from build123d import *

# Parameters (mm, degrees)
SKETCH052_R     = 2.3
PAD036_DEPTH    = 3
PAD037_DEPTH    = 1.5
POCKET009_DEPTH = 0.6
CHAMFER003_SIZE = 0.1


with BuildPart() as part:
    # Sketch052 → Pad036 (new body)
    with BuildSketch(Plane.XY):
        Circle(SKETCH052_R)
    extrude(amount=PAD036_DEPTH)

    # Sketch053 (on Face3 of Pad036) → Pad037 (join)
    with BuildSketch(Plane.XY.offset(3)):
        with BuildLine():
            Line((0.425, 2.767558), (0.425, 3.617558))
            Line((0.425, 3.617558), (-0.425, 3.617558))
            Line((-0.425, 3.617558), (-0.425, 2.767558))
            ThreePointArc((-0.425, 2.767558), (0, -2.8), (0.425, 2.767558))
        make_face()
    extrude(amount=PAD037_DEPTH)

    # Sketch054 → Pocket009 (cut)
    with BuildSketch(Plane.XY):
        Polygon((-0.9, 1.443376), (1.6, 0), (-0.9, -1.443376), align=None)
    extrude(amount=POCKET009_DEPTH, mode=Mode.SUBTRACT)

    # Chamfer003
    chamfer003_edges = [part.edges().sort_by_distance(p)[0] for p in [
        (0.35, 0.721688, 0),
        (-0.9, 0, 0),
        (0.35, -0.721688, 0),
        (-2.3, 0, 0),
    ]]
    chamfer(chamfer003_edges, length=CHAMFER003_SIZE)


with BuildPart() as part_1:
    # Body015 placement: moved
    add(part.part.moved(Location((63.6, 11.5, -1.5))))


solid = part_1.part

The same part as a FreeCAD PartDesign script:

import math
import FreeCAD as App
import Part
import Sketcher

V = App.Vector
Q = App.Units.Quantity


def edges_at(feature, points):
    """Names of the edges that pass closest to the given points."""
    edges = feature.Shape.Edges
    near = lambda p: min(range(len(edges)), key=lambda i: edges[i].distToShape(Part.Vertex(*p))[0])
    return sorted({f"Edge{near(p) + 1}" for p in points})

doc = App.newDocument("Part")
body = doc.addObject("PartDesign::Body", "Body")

# Sketch on XY plane
sketch1 = body.newObject("Sketcher::SketchObject", "Sketch")
sketch1.AttachmentSupport = (doc.getObject("XY_Plane"), [""])
sketch1.MapMode = "FlatFace"
sketch1.addGeometry(Part.Circle(V(0, 0, 0), V(0, 0, 1), 2.3), False)
sketch1.addConstraint(Sketcher.Constraint("Coincident", 0, 3, -1, 1))
sketch1.addConstraint(Sketcher.Constraint("Diameter", 0, 4.6))
pad1 = body.newObject("PartDesign::Pad", "Pad")
pad1.Profile = sketch1
pad1.Length = 3

# Sketch on XY plane
sketch2 = body.newObject("Sketcher::SketchObject", "Sketch001")
sketch2.AttachmentSupport = (doc.getObject("XY_Plane"), [""])
sketch2.MapMode = "FlatFace"
sketch2.AttachmentOffset = App.Placement(V(0, 0, 3), App.Rotation())
sketch2.addGeometry(Part.LineSegment(V(0.425, 2.767558, 0), V(0.425, 3.617558, 0)), False)
sketch2.addGeometry(Part.LineSegment(V(0.425, 3.617558, 0), V(-0.425, 3.617558, 0)), False)
sketch2.addGeometry(Part.LineSegment(V(-0.425, 3.617558, 0), V(-0.425, 2.767558, 0)), False)
sketch2.addGeometry(Part.ArcOfCircle(Part.Circle(V(0, 0, 0), V(0, 0, 1), 2.8), math.radians(98.730425), math.radians(441.269575)), False)
sketch2.addConstraint(Sketcher.Constraint("Coincident", 0, 2, 1, 1))
sketch2.addConstraint(Sketcher.Constraint("Coincident", 1, 2, 2, 1))
sketch2.addConstraint(Sketcher.Constraint("Coincident", 2, 2, 3, 1))
sketch2.addConstraint(Sketcher.Constraint("Coincident", 3, 2, 0, 1))
sketch2.addConstraint(Sketcher.Constraint("Vertical", 0))
sketch2.addConstraint(Sketcher.Constraint("Horizontal", 1))
sketch2.addConstraint(Sketcher.Constraint("Vertical", 2))
sketch2.addConstraint(Sketcher.Constraint("Coincident", 3, 3, -1, 1))
sketch2.addConstraint(Sketcher.Constraint("Horizontal", 2, 2, 3, 2))
sketch2.addConstraint(Sketcher.Constraint("Equal", 1, 0))
sketch2.addConstraint(Sketcher.Constraint("Radius", 3, 2.8))
sketch2.addConstraint(Sketcher.Constraint("DistanceX", 1, 2, 1, 1, 0.85))
pad2 = body.newObject("PartDesign::Pad", "Pad001")
pad2.Profile = sketch2
pad2.Length = 1.5

# Sketch on XY plane
sketch3 = body.newObject("Sketcher::SketchObject", "Sketch002")
sketch3.AttachmentSupport = (doc.getObject("XY_Plane"), [""])
sketch3.MapMode = "FlatFace"
sketch3.addGeometry(Part.LineSegment(V(1.6, 0, 0), V(-0.9, 1.443376, 0)), False)
sketch3.addGeometry(Part.LineSegment(V(-0.9, 1.443376, 0), V(-0.9, -1.443376, 0)), False)
sketch3.addGeometry(Part.LineSegment(V(-0.9, -1.443376, 0), V(1.6, 0, 0)), False)
sketch3.addConstraint(Sketcher.Constraint("Coincident", 0, 2, 1, 1))
sketch3.addConstraint(Sketcher.Constraint("Coincident", 1, 2, 2, 1))
sketch3.addConstraint(Sketcher.Constraint("Coincident", 2, 2, 0, 1))
sketch3.addConstraint(Sketcher.Constraint("Vertical", 1))
sketch3.addConstraint(Sketcher.Constraint("PointOnObject", 2, 2, -1))
sketch3.addConstraint(Sketcher.Constraint("Equal", 0, 2))
sketch3.addConstraint(Sketcher.Constraint("Angle", 0, Q("149.999994 deg")))
sketch3.addConstraint(Sketcher.Constraint("DistanceX", 0, 2, -1, 1, 0.9))
sketch3.addConstraint(Sketcher.Constraint("DistanceX", -1, 1, 2, 2, 1.6))
pocket1 = body.newObject("PartDesign::Pocket", "Pocket")
pocket1.Profile = sketch3
pocket1.Length = 0.6
pocket1.Reversed = True
doc.recompute()

chamfer = body.newObject("PartDesign::Chamfer", "Chamfer")
chamfer.Base = (pocket1, edges_at(pocket1, [
    (0.35, 0.722, 0),
    (-0.9, 0, 0),
    (0.35, -0.722, 0),
    (-2.3, 0, 0),
]))
chamfer.Size = 0.1
body2 = doc.addObject("PartDesign::Body", "Body001")
doc.recompute()

body.Placement = App.Placement(V(63.6, 11.5, -1.5), App.Rotation(V(0, 0, 1), 0))
boolean = body2.newObject("PartDesign::Boolean", "Boolean")
boolean.Type = "Fuse"
boolean.addObjects([body])

doc.recompute()
